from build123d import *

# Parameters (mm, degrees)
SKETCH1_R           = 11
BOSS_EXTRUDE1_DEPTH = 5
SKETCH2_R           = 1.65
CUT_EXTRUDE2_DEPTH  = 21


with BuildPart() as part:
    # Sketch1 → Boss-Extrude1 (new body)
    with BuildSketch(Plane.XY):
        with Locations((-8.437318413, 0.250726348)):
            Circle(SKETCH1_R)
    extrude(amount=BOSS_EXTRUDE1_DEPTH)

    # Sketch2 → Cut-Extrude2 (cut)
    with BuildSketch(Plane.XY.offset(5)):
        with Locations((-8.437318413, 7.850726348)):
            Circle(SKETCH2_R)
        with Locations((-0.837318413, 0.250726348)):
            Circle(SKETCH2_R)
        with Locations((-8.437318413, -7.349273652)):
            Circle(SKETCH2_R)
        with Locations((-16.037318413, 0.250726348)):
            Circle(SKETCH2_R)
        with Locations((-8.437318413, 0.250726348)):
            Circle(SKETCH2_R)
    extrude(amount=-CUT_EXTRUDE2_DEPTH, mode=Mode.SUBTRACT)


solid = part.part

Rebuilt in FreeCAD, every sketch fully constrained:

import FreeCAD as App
import Part
import Sketcher

doc = App.newDocument("Part")
body = doc.addObject("PartDesign::Body", "Body")

# Sketch on XY plane
sketch1 = body.newObject("Sketcher::SketchObject", "Sketch")
sketch1.AttachmentSupport = (doc.getObject("XY_Plane"), [""])
sketch1.MapMode = "FlatFace"
sketch1.addGeometry(Part.Circle(App.Vector(-8, 0, 0), App.Vector(0, 0, 1), 11), False)
sketch1.addConstraint(Sketcher.Constraint("Diameter", 0, 22.0))
sketch1.addConstraint(Sketcher.Constraint("DistanceX", 0, 3, -1, 1, 8.437318))
sketch1.addConstraint(Sketcher.Constraint("DistanceY", -1, 1, 0, 3, 0.250726))
pad1 = body.newObject("PartDesign::Pad", "Pad")
pad1.Profile = sketch1
pad1.Length = 5

# Sketch on XY plane
sketch2 = body.newObject("Sketcher::SketchObject", "Sketch001")
sketch2.AttachmentSupport = (doc.getObject("XY_Plane"), [""])
sketch2.MapMode = "FlatFace"
sketch2.AttachmentOffset = App.Placement(App.Vector(0, 0, 5), App.Rotation())
sketch2.addGeometry(Part.Circle(App.Vector(-8.4, 7.9, 0), App.Vector(0, 0, 1), 1.6), False)
sketch2.addGeometry(Part.Circle(App.Vector(-0.8, 0.3, 0), App.Vector(0, 0, 1), 1.6), False)
sketch2.addGeometry(Part.Circle(App.Vector(-8.4, -7.3, 0), App.Vector(0, 0, 1), 1.6), False)
sketch2.addGeometry(Part.Circle(App.Vector(-16, 0.3, 0), App.Vector(0, 0, 1), 1.6), False)
sketch2.addGeometry(Part.Circle(App.Vector(-8.4, 0.3, 0), App.Vector(0, 0, 1), 1.6), False)
sketch2.addConstraint(Sketcher.Constraint("Equal", 0, 1))
sketch2.addConstraint(Sketcher.Constraint("Equal", 1, 2))
sketch2.addConstraint(Sketcher.Constraint("Equal", 2, 3))
sketch2.addConstraint(Sketcher.Constraint("Equal", 3, 4))
sketch2.addConstraint(Sketcher.Constraint("Horizontal", 1, 3, 3, 3))
sketch2.addConstraint(Sketcher.Constraint("Horizontal", 3, 3, 4, 3))
sketch2.addConstraint(Sketcher.Constraint("Vertical", 0, 3, 2, 3))
sketch2.addConstraint(Sketcher.Constraint("Vertical", 2, 3, 4, 3))
sketch2.addConstraint(Sketcher.Constraint("Diameter", 0, 3.3))
sketch2.addConstraint(Sketcher.Constraint("DistanceX", 0, 3, 1, 3, 7.6))
sketch2.addConstraint(Sketcher.Constraint("DistanceY", 1, 3, 0, 3, 7.6))
sketch2.addConstraint(Sketcher.Constraint("DistanceY", 2, 3, 1, 3, 7.6))
sketch2.addConstraint(Sketcher.Constraint("DistanceX", 3, 3, 2, 3, 7.6))
sketch2.addConstraint(Sketcher.Constraint("DistanceX", 0, 3, -1, 1, 8.437318))
sketch2.addConstraint(Sketcher.Constraint("DistanceY", -1, 1, 0, 3, 7.850726))
pocket1 = body.newObject("PartDesign::Pocket", "Pocket")
pocket1.Profile = sketch2
pocket1.Length = 21

doc.recompute()
